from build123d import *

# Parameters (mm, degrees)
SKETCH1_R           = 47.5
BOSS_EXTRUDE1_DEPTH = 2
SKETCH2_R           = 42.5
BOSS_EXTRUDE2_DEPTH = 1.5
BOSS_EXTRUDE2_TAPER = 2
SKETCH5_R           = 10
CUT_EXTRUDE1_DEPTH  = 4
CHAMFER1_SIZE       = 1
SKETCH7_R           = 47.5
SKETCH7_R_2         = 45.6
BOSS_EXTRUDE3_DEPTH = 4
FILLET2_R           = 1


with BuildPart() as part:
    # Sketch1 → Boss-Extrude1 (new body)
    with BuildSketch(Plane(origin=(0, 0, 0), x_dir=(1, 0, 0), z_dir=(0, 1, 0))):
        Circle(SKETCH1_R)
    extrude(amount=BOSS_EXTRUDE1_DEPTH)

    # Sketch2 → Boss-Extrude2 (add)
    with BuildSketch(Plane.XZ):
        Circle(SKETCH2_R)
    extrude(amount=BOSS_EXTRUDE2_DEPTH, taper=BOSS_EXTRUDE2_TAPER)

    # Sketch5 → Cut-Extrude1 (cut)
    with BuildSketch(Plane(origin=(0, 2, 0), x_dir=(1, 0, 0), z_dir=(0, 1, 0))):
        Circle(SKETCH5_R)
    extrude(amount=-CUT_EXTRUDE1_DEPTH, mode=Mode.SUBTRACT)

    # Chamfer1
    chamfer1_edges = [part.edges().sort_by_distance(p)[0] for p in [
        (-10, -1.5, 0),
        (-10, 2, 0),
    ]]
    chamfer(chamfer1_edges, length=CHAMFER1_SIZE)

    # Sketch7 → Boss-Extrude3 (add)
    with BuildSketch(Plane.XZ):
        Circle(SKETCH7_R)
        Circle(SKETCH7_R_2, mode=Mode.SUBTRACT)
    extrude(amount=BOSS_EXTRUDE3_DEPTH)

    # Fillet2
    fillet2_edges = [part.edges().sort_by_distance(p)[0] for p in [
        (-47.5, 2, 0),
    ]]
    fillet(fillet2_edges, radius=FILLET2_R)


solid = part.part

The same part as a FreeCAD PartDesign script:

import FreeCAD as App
import Part
import Sketcher

V = App.Vector
Q = App.Units.Quantity


def edges_at(feature, points):
    """Names of the edges that pass closest to the given points."""
    edges = feature.Shape.Edges
    near = lambda p: min(range(len(edges)), key=lambda i: edges[i].distToShape(Part.Vertex(*p))[0])
    return sorted({f"Edge{near(p) + 1}" for p in points})

doc = App.newDocument("Part")
params = doc.addObject("Spreadsheet::Sheet", "Params")
for row, (alias, value) in enumerate([
    ("sketch1_diameter", "95 mm"),
    ("pad1_length", "2 mm"),
    ("sketch2_diameter", "85 mm"),
    ("pad2_length", "1.5 mm"),
    ("pad2_taper", "-2 deg"),
    ("sketch3_diameter", "20 mm"),
    ("pocket1_length", "4 mm"),
    ("chamfer_size", "1 mm"),
    ("sketch4_diameter", "95 mm"),
    ("sketch4_diameter2", "91.2 mm"),
    ("pad3_length", "4 mm"),
    ("fillet_radius", "1 mm"),
], start=1):
    params.set(f"A{row}", alias)
    params.set(f"B{row}", "=" + value)
    params.setAlias(f"B{row}", alias)

body = doc.addObject("PartDesign::Body", "Body")

# Sketch on XZ plane
sketch1 = body.newObject("Sketcher::SketchObject", "Sketch")
sketch1.AttachmentSupport = (doc.getObject("XZ_Plane"), [""])
sketch1.MapMode = "FlatFace"
sketch1.addGeometry(Part.Circle(V(0, 0, 0), V(0, 0, 1), 48), False)
sketch1.addConstraint(Sketcher.Constraint("Coincident", 0, 3, -1, 1))
sketch1.addConstraint(Sketcher.Constraint("Diameter", 0, Q("95 mm")))
sketch1.setExpression("Constraints[1]", "Params.sketch1_diameter")
pad1 = body.newObject("PartDesign::Pad", "Pad")
pad1.Profile = sketch1
pad1.setExpression("Length", "Params.pad1_length")
pad1.Reversed = True

# Sketch on XZ plane
sketch2 = body.newObject("Sketcher::SketchObject", "Sketch001")
sketch2.AttachmentSupport = (doc.getObject("XZ_Plane"), [""])
sketch2.MapMode = "FlatFace"
sketch2.addGeometry(Part.Circle(V(0, 0, 0), V(0, 0, 1), 42), False)
sketch2.addConstraint(Sketcher.Constraint("Coincident", 0, 3, -1, 1))
sketch2.addConstraint(Sketcher.Constraint("Diameter", 0, Q("85 mm")))
sketch2.setExpression("Constraints[1]", "Params.sketch2_diameter")
pad2 = body.newObject("PartDesign::Pad", "Pad001")
pad2.Profile = sketch2
pad2.setExpression("Length", "Params.pad2_length")
pad2.setExpression("TaperAngle", "Params.pad2_taper")

# Sketch on XZ plane
sketch3 = body.newObject("Sketcher::SketchObject", "Sketch002")
sketch3.AttachmentSupport = (doc.getObject("XZ_Plane"), [""])
sketch3.MapMode = "FlatFace"
sketch3.AttachmentOffset = App.Placement(V(0, 0, -2), App.Rotation())
sketch3.addGeometry(Part.Circle(V(0, 0, 0), V(0, 0, 1), 10), False)
sketch3.addConstraint(Sketcher.Constraint("Coincident", 0, 3, -1, 1))
sketch3.addConstraint(Sketcher.Constraint("Diameter", 0, Q("20 mm")))
sketch3.setExpression("Constraints[1]", "Params.sketch3_diameter")
pocket1 = body.newObject("PartDesign::Pocket", "Pocket")
pocket1.Profile = sketch3
pocket1.setExpression("Length", "Params.pocket1_length")
pocket1.Reversed = True
doc.recompute()

chamfer = body.newObject("PartDesign::Chamfer", "Chamfer")
chamfer.Base = (pocket1, edges_at(pocket1, [(-10, -1.5, 0), (-10, 2, 0)]))
chamfer.setExpression("Size", "Params.chamfer_size")

# Sketch on XZ plane
sketch4 = body.newObject("Sketcher::SketchObject", "Sketch003")
sketch4.AttachmentSupport = (doc.getObject("XZ_Plane"), [""])
sketch4.MapMode = "FlatFace"
sketch4.addGeometry(Part.Circle(V(0, 0, 0), V(0, 0, 1), 48), False)
sketch4.addGeometry(Part.Circle(V(0, 0, 0), V(0, 0, 1), 46), False)
sketch4.addConstraint(Sketcher.Constraint("Coincident", 0, 3, -1, 1))
sketch4.addConstraint(Sketcher.Constraint("Coincident", 1, 3, -1, 1))
sketch4.addConstraint(Sketcher.Constraint("Diameter", 0, Q("95 mm")))
sketch4.addConstraint(Sketcher.Constraint("Diameter", 1, Q("91.2 mm")))
sketch4.setExpression("Constraints[2]", "Params.sketch4_diameter")
sketch4.setExpression("Constraints[3]", "Params.sketch4_diameter2")
pad3 = body.newObject("PartDesign::Pad", "Pad002")
pad3.Profile = sketch4
pad3.setExpression("Length", "Params.pad3_length")
doc.recompute()

fillet = body.newObject("PartDesign::Fillet", "Fillet")
fillet.Base = (pad3, edges_at(pad3, [(-47.5, 2, 0)]))
fillet.setExpression("Radius", "Params.fillet_radius")

doc.recompute()
